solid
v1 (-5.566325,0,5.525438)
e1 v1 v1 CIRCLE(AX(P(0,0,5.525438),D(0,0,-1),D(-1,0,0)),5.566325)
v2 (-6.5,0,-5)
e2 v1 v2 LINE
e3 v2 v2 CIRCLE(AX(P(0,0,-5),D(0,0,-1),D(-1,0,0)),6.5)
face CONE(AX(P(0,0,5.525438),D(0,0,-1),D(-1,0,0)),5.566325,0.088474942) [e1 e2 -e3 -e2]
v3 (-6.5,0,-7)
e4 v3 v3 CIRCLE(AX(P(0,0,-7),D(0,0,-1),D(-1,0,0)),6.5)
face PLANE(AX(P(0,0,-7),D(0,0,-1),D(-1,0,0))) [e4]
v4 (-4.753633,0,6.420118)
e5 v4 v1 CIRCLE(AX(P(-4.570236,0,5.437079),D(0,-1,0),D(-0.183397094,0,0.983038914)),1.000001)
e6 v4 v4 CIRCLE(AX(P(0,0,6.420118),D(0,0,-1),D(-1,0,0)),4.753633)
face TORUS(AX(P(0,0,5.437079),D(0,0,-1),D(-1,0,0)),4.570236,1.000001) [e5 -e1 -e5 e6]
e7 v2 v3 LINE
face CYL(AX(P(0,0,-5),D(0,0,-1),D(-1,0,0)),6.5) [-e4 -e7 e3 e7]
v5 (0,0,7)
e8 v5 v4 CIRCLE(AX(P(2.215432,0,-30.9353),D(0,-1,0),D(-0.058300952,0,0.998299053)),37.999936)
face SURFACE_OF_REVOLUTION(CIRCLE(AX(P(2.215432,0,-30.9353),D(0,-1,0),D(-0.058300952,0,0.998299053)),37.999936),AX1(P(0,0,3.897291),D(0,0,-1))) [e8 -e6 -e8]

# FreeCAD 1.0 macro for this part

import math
import FreeCAD as App
import Part
import Sketcher

doc = App.newDocument("Part")
body = doc.addObject("PartDesign::Body", "Body")

sketch1 = body.newObject("Sketcher::SketchObject", "Sketch")
sketch1.AttachmentSupport = (doc.getObject("XZ_Plane"), [""])
sketch1.MapMode = "FlatFace"
sketch1.addGeometry([
    Part.LineSegment(App.Vector(-5.6, 5.5, 0), App.Vector(-6.5, -5, 0)),
    Part.LineSegment(App.Vector(-6.5, -5, 0), App.Vector(-6.5, -7, 0)),
    Part.LineSegment(App.Vector(-6.5, -7, 0), App.Vector(0, -7, 0)),
    Part.LineSegment(App.Vector(0, -7, 0), App.Vector(0, 7, 0)),
    Part.ArcOfCircle(Part.Circle(App.Vector(2.2, -30.9, 0), App.Vector(0, 0, 1), 38), math.radians(93.34), math.radians(100.57)),
    Part.ArcOfCircle(Part.Circle(App.Vector(-4.6, 5.4, 0), App.Vector(0, 0, 1), 1), math.radians(101), math.radians(175)),
], False)
sketch1.addConstraint([
    Sketcher.Constraint("Coincident", 0, 2, 1, 1),
    Sketcher.Constraint("Coincident", 1, 2, 2, 1),
    Sketcher.Constraint("Coincident", 2, 2, 3, 1),
    Sketcher.Constraint("Coincident", 3, 2, 4, 1),
    Sketcher.Constraint("Tangent", 4, 2, 5, 1),
    Sketcher.Constraint("Tangent", 5, 2, 0, 1),
    Sketcher.Constraint("Vertical", 1),
    Sketcher.Constraint("Horizontal", 2),
    Sketcher.Constraint("Vertical", 3),
    Sketcher.Constraint("Symmetric", 2, 2, 3, 2, -1, 1),
    Sketcher.Constraint("Radius", 5, 1.000001),
    Sketcher.Constraint("DistanceY", 1, 2, 1, 1, 2.0),
    Sketcher.Constraint("DistanceY", 3, 1, 3, 2, 14.0),
    Sketcher.Constraint("DistanceX", 2, 1, 2, 2, 6.5),
    Sketcher.Constraint("Radius", 4, 37.999936),
    Sketcher.Constraint("DistanceY", 4, 3, -1, 1, 30.9353),
    Sketcher.Constraint("Distance", 0, 10.566768),
])
revolution = body.newObject("PartDesign::Revolution", "Revolution")
revolution.Profile = sketch1
revolution.ReferenceAxis = (sketch1, ["V_Axis"])
revolution.Angle = 360

doc.recompute()
